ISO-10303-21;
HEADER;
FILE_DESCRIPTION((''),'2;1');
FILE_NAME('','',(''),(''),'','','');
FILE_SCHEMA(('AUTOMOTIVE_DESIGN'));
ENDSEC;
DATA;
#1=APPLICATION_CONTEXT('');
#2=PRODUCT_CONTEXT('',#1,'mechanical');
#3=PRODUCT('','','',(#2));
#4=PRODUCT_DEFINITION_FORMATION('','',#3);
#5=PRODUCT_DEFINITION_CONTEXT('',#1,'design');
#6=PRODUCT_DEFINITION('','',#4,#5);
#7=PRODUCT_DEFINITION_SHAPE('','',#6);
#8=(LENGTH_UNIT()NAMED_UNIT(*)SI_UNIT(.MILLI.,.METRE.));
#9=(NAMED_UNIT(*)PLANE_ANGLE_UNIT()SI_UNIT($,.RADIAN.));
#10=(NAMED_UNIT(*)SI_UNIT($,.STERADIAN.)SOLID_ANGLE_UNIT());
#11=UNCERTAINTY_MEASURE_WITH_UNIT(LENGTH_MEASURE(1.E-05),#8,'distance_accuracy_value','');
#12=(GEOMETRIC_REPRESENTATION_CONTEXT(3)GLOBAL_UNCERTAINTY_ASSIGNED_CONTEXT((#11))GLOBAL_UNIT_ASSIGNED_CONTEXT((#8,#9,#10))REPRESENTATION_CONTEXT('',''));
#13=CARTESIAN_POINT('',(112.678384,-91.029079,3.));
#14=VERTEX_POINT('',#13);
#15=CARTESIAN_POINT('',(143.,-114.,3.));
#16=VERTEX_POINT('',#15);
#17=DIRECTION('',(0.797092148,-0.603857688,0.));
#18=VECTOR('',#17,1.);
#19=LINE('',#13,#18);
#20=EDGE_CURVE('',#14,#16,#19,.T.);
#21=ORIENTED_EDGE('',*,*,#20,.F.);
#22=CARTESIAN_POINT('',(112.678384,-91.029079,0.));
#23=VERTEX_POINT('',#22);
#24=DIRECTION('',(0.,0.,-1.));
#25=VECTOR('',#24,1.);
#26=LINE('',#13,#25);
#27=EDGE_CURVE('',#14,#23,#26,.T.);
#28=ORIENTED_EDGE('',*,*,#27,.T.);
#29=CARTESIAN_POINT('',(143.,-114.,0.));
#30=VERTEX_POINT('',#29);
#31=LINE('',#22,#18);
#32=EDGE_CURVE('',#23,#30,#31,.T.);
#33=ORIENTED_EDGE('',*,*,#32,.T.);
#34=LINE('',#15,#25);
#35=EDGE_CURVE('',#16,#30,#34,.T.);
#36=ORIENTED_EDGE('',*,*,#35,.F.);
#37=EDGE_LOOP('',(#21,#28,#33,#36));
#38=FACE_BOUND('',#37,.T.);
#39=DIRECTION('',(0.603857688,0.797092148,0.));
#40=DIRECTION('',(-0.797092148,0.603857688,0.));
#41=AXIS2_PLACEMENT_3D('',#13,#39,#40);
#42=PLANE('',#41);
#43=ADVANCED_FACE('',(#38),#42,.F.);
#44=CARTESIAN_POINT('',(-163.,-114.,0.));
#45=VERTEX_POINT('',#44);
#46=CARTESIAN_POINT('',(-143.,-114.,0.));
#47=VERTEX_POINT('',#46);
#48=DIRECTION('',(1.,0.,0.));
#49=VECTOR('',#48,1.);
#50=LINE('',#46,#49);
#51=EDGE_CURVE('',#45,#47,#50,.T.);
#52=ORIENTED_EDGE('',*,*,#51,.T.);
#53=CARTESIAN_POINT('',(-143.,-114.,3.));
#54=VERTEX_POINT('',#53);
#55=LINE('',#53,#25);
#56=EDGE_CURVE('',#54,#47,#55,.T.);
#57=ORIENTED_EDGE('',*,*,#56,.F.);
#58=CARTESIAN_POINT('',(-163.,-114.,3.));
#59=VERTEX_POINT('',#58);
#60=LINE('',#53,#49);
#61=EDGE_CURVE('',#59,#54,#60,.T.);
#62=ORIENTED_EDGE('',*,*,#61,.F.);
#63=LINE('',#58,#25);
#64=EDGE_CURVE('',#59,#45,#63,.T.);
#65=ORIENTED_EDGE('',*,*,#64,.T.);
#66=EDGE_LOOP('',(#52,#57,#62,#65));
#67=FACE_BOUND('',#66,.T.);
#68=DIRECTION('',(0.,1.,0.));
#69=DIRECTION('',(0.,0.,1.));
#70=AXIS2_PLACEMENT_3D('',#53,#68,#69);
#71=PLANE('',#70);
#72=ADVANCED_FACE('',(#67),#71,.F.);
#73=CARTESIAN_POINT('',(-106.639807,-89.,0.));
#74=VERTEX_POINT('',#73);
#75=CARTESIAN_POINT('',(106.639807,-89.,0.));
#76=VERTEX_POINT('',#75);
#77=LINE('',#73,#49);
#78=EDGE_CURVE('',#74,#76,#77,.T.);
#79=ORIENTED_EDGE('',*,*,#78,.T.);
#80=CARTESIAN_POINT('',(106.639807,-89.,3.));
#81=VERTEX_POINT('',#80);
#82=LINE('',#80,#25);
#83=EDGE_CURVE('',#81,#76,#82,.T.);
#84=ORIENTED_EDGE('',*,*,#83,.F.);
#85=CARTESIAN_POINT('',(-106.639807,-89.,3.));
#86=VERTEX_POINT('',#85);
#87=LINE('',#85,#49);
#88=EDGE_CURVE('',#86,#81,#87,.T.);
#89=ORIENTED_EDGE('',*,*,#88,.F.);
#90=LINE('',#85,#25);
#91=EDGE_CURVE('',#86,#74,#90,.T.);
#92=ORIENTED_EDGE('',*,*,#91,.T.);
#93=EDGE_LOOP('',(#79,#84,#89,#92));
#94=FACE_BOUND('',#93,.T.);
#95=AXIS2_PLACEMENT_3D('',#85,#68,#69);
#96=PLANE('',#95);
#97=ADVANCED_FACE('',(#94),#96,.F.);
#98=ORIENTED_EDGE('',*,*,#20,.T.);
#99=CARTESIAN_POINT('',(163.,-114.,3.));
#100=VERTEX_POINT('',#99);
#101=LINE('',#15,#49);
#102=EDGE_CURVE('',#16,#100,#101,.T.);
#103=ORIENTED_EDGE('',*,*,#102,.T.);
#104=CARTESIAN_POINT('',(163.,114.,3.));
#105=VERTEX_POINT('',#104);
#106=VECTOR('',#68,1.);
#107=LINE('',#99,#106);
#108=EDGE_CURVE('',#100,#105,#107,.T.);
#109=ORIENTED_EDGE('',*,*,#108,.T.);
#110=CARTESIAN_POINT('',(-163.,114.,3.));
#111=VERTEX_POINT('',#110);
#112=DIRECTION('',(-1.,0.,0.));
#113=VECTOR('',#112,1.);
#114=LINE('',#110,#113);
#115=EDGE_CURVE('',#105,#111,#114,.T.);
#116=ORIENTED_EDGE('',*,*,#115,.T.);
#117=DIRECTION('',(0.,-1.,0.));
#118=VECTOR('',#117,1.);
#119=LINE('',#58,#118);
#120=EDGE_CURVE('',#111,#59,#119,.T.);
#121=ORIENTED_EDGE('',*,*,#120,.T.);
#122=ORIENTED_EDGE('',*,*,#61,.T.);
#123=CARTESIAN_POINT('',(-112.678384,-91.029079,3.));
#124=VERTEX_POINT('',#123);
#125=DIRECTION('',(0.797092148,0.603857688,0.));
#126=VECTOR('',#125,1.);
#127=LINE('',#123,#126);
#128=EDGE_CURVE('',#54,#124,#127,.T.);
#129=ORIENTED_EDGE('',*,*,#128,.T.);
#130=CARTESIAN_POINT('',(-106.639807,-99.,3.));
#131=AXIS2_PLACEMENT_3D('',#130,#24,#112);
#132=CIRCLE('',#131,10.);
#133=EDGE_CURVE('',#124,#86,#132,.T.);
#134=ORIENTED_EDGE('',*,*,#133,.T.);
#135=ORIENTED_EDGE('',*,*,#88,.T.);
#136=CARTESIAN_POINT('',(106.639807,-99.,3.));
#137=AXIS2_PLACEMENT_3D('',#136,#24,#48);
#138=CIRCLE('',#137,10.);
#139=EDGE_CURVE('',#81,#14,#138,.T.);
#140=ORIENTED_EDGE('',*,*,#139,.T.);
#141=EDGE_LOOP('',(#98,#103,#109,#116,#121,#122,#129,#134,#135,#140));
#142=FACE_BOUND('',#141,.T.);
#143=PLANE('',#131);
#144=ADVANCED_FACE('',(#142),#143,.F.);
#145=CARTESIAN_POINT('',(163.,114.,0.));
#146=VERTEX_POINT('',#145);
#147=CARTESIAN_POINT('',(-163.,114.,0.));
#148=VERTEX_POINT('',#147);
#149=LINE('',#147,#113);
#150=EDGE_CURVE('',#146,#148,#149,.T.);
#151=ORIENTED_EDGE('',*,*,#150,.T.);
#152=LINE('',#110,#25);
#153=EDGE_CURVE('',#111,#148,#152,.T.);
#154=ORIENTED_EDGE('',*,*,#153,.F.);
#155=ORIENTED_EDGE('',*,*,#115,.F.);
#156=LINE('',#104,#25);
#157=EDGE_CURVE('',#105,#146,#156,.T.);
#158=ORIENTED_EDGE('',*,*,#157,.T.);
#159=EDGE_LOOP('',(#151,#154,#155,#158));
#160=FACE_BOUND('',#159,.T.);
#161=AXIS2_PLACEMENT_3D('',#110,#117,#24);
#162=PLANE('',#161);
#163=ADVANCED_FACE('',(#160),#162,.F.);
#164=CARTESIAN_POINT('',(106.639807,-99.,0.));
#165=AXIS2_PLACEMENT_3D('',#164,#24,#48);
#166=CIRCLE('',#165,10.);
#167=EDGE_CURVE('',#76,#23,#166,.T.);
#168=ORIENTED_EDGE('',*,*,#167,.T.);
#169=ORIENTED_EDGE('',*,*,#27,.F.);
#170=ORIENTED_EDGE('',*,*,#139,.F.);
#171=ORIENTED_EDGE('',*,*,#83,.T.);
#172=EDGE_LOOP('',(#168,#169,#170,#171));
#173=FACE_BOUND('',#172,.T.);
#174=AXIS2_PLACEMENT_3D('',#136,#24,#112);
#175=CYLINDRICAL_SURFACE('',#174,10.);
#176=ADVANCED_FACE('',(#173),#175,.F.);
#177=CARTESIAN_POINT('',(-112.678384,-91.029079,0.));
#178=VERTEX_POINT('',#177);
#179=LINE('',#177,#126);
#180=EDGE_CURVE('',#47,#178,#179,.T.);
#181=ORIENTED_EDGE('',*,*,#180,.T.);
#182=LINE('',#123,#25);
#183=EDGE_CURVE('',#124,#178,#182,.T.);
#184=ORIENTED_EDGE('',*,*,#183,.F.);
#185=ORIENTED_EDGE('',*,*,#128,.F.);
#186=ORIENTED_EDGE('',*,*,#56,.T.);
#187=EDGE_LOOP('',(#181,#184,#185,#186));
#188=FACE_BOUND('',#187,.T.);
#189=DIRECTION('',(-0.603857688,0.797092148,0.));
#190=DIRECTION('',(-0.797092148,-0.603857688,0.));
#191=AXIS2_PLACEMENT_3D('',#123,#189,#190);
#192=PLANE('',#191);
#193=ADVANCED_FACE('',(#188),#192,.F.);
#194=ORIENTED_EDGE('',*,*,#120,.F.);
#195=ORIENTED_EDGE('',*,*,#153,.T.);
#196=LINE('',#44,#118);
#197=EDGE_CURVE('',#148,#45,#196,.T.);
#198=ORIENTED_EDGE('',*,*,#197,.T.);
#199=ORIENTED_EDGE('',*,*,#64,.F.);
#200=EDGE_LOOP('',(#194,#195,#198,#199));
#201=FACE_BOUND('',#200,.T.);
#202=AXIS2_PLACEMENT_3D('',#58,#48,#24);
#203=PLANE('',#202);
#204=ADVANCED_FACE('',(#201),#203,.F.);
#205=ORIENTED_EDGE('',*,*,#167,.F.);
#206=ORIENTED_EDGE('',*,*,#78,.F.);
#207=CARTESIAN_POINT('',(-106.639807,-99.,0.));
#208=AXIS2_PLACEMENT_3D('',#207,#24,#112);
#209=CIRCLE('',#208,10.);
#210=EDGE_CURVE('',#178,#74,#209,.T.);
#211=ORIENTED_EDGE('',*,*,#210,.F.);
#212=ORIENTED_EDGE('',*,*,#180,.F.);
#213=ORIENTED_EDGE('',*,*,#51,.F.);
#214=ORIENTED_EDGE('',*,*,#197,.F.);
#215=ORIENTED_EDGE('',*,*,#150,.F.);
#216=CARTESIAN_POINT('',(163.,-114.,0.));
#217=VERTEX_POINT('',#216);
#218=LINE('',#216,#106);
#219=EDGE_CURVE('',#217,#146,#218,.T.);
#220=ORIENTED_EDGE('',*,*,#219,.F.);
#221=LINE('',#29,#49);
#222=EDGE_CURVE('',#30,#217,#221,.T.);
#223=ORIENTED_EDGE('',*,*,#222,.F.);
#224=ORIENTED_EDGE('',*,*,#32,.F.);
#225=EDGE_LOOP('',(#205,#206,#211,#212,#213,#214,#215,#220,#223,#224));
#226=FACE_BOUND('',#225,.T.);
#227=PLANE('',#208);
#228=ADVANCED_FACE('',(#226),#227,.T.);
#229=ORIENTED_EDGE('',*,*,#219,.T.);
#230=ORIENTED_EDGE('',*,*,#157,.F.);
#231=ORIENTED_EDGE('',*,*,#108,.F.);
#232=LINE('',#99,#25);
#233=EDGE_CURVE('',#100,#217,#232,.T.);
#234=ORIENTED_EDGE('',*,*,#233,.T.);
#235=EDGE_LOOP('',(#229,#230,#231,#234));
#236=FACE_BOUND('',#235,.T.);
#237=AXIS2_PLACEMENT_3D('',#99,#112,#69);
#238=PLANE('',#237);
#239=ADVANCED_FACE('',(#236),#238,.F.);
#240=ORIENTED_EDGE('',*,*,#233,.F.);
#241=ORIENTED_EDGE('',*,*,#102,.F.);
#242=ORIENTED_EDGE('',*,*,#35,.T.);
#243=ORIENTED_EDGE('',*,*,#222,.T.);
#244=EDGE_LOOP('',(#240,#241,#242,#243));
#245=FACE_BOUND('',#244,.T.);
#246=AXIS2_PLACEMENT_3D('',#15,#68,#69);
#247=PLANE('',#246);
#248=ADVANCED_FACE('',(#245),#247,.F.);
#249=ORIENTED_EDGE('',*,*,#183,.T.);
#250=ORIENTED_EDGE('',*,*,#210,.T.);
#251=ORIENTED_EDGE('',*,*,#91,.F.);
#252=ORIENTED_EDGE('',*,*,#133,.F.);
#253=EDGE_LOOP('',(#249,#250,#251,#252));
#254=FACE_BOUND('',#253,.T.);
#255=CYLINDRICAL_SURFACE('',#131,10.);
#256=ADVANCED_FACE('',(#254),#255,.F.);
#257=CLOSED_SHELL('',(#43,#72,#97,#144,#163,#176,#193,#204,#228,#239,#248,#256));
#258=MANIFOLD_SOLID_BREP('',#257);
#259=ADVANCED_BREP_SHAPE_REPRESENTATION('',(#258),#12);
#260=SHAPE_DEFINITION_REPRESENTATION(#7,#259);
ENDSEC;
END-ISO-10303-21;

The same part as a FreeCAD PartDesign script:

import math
import FreeCAD as App
import Part
import Sketcher
from FreeCAD import Vector

doc = App.newDocument("Part")
body = doc.addObject("PartDesign::Body", "Body")

# Sketch on XY plane
sketch1 = doc.addObject("Sketcher::SketchObject", "Sketch")
body.addObject(sketch1)
sketch1.AttachmentSupport = (doc.XY_Plane, [""])
sketch1.MapMode = "FlatFace"
sketch1.addGeometry([
    Part.LineSegment(Vector(-163, 114, 0), Vector(-163, -114, 0)),  # 0
    Part.LineSegment(Vector(-163, -114, 0), Vector(-143, -114, 0)),  # 1
    Part.LineSegment(Vector(-143, -114, 0), Vector(-112.678384, -91.029079, 0)),  # 2
    Part.ArcOfCircle(Part.Circle(Vector(-106.639807, -99, 0), Vector(0, 0, 1), 10), math.radians(90), math.radians(127.146687)),  # 3
    Part.LineSegment(Vector(-106.639807, -89, 0), Vector(106.639807, -89, 0)),  # 4
    Part.ArcOfCircle(Part.Circle(Vector(106.639807, -99, 0), Vector(0, 0, 1), 10), math.radians(52.853313), math.radians(90)),  # 5
    Part.LineSegment(Vector(112.678384, -91.029079, 0), Vector(143, -114, 0)),  # 6
    Part.LineSegment(Vector(143, -114, 0), Vector(163, -114, 0)),  # 7
    Part.LineSegment(Vector(163, -114, 0), Vector(163, 114, 0)),  # 8
    Part.LineSegment(Vector(163, 114, 0), Vector(-163, 114, 0)),  # 9
], False)
sketch1.addConstraint([
    Sketcher.Constraint("Coincident", 0, 2, 1, 1),
    Sketcher.Constraint("Coincident", 1, 2, 2, 1),
    Sketcher.Constraint("Tangent", 2, 2, 3, 2),
    Sketcher.Constraint("Tangent", 3, 1, 4, 1),
    Sketcher.Constraint("Tangent", 4, 2, 5, 2),
    Sketcher.Constraint("Tangent", 5, 1, 6, 1),
    Sketcher.Constraint("Coincident", 6, 2, 7, 1),
    Sketcher.Constraint("Coincident", 7, 2, 8, 1),
    Sketcher.Constraint("Coincident", 8, 2, 9, 1),
    Sketcher.Constraint("Coincident", 9, 2, 0, 1),
    Sketcher.Constraint("Vertical", 0),
    Sketcher.Constraint("Horizontal", 1),
    Sketcher.Constraint("Horizontal", 4),
    Sketcher.Constraint("Horizontal", 7),
    Sketcher.Constraint("Vertical", 8),
    Sketcher.Constraint("Horizontal", 9),
    Sketcher.Constraint("Equal", 3, 5),
    Sketcher.Constraint("Symmetric", 0, 2, 8, 2, -1, 1),
    Sketcher.Constraint("Symmetric", 2, 2, 5, 1, -2),
    Sketcher.Constraint("Horizontal", 1, 2, 6, 2),
    Sketcher.Constraint("Radius", 3, 10.0),
    Sketcher.Constraint("DistanceX", 1, 1, 1, 2, 20.0),
    Sketcher.Constraint("DistanceX", 9, 2, 9, 1, 326.0),
    Sketcher.Constraint("DistanceY", 0, 2, 0, 1, 228.0),
    Sketcher.Constraint("DistanceY", 3, 3, -1, 1, 99.0),
    Sketcher.Constraint("Distance", 2, 38.04029),
])
pad1 = doc.addObject("PartDesign::Pad", "Pad")
body.addObject(pad1)
pad1.Profile = sketch1
pad1.Length = 3

doc.recompute()
